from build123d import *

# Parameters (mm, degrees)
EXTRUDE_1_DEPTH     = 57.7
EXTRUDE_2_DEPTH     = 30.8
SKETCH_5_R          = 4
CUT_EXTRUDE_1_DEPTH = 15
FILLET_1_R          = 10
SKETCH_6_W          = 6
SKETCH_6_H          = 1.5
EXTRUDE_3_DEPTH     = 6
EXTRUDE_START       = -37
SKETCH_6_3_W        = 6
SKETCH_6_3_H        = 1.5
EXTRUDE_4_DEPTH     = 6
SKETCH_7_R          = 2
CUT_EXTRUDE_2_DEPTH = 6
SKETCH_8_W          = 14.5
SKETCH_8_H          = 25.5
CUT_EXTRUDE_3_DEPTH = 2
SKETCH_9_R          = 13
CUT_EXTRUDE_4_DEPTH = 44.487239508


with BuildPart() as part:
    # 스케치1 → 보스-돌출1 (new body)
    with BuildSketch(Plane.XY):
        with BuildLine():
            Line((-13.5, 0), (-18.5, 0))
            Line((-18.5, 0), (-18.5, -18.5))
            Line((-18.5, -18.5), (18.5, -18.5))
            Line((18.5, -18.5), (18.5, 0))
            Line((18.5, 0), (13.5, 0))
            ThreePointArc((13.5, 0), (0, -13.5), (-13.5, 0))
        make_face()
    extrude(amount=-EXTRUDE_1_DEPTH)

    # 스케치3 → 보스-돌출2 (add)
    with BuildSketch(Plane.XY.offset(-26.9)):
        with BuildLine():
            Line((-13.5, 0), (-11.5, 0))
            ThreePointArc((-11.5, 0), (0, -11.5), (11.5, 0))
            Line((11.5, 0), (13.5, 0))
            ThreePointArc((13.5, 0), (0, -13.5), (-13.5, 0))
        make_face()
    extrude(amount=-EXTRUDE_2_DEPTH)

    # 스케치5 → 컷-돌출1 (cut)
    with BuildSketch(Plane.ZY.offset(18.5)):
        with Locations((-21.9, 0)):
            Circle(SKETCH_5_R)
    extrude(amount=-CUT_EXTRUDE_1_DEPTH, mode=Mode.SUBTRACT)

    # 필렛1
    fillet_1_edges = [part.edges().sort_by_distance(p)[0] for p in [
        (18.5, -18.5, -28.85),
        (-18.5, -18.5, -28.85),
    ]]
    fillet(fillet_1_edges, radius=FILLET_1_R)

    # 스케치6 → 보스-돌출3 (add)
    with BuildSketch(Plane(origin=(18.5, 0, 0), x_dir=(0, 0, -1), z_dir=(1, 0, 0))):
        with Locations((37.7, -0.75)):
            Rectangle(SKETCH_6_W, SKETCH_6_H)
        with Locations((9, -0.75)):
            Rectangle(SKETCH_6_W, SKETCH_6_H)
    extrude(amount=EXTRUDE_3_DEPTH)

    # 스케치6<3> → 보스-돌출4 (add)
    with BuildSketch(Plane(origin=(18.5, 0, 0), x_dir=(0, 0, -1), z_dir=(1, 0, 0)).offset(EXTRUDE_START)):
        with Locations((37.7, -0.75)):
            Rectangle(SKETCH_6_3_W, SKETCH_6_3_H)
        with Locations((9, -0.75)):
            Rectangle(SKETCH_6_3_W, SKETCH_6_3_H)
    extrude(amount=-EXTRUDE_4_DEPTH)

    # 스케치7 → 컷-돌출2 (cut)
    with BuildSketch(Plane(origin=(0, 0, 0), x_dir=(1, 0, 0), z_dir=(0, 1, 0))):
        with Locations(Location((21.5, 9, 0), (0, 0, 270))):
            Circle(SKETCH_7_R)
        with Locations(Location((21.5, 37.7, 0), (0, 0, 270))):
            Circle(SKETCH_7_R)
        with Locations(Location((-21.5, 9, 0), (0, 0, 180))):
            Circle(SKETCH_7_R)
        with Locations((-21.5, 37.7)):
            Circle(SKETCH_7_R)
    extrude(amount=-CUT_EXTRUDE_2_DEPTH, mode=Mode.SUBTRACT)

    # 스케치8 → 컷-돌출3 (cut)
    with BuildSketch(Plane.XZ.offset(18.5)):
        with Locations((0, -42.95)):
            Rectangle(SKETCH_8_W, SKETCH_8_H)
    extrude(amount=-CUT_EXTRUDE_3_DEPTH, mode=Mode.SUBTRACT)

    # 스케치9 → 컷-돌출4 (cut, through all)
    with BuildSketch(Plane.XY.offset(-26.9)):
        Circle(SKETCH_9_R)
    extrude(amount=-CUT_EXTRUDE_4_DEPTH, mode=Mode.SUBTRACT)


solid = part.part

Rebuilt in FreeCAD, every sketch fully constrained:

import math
import FreeCAD as App
import Part
import Sketcher

V = App.Vector


def edges_at(feature, points):
    """Names of the edges that pass closest to the given points."""
    edges = feature.Shape.Edges
    near = lambda p: min(range(len(edges)), key=lambda i: edges[i].distToShape(Part.Vertex(*p))[0])
    return sorted({f"Edge{near(p) + 1}" for p in points})

doc = App.newDocument("Part")
body = doc.addObject("PartDesign::Body", "Body")

# Sketch on XY plane
sketch1 = body.newObject("Sketcher::SketchObject", "Sketch")
sketch1.AttachmentSupport = (doc.getObject("XY_Plane"), [""])
sketch1.MapMode = "FlatFace"
sketch1.addGeometry([
    Part.LineSegment(V(-14, 0, 0), V(-18, 0, 0)),  # 0
    Part.LineSegment(V(-18, 0, 0), V(-18, -18, 0)),  # 1
    Part.LineSegment(V(-18, -18, 0), V(18, -18, 0)),  # 2
    Part.LineSegment(V(18, -18, 0), V(18, 0, 0)),  # 3
    Part.LineSegment(V(18, 0, 0), V(14, 0, 0)),  # 4
    Part.ArcOfCircle(Part.Circle(V(0, 0, 0), V(0, 0, 1), 14), math.radians(180), math.radians(360)),  # 5
], False)
sketch1.addConstraint([
    Sketcher.Constraint("Coincident", 0, 2, 1, 1),
    Sketcher.Constraint("Coincident", 1, 2, 2, 1),
    Sketcher.Constraint("Coincident", 2, 2, 3, 1),
    Sketcher.Constraint("Coincident", 3, 2, 4, 1),
    Sketcher.Constraint("Coincident", 4, 2, 5, 2),
    Sketcher.Constraint("Coincident", 5, 1, 0, 1),
    Sketcher.Constraint("Horizontal", 0),
    Sketcher.Constraint("Vertical", 1),
    Sketcher.Constraint("Horizontal", 2),
    Sketcher.Constraint("Vertical", 3),
    Sketcher.Constraint("Horizontal", 4),
    Sketcher.Constraint("Coincident", 5, 3, -1, 1),
    Sketcher.Constraint("Symmetric", 0, 2, 3, 2, -1, 1),
    Sketcher.Constraint("PointOnObject", 0, 2, -1),
    Sketcher.Constraint("Radius", 5, 13.5),
    Sketcher.Constraint("DistanceX", 0, 2, 0, 1, 5.0),
    Sketcher.Constraint("DistanceY", 1, 2, 1, 1, 18.5),
])
pad1 = body.newObject("PartDesign::Pad", "Pad")
pad1.Profile = sketch1
pad1.Length = 57.7
pad1.Reversed = True

# Sketch on XY plane
sketch2 = body.newObject("Sketcher::SketchObject", "Sketch001")
sketch2.AttachmentSupport = (doc.getObject("XY_Plane"), [""])
sketch2.MapMode = "FlatFace"
sketch2.AttachmentOffset = App.Placement(V(0, 0, -26.9), App.Rotation())
sketch2.addGeometry([
    Part.LineSegment(V(-11.5, 0, 0), V(-13.5, 0, 0)),
    Part.ArcOfCircle(Part.Circle(V(0, 0, 0), V(0, 0, 1), 13.5), math.radians(180), math.radians(360)),
    Part.LineSegment(V(13.5, 0, 0), V(11.5, 0, 0)),
    Part.ArcOfCircle(Part.Circle(V(0, 0, 0), V(0, 0, 1), 11.5), math.radians(180), math.radians(360)),
], False)
sketch2.addConstraint([
    Sketcher.Constraint("Coincident", 0, 2, 1, 1),
    Sketcher.Constraint("Coincident", 1, 2, 2, 1),
    Sketcher.Constraint("Coincident", 2, 2, 3, 2),
    Sketcher.Constraint("Coincident", 3, 1, 0, 1),
    Sketcher.Constraint("Horizontal", 0),
    Sketcher.Constraint("Horizontal", 2),
    Sketcher.Constraint("Coincident", 1, 3, -1, 1),
    Sketcher.Constraint("Coincident", 3, 3, -1, 1),
    Sketcher.Constraint("PointOnObject", 0, 2, -1),
    Sketcher.Constraint("PointOnObject", 1, 2, -1),
    Sketcher.Constraint("Radius", 1, 13.5),
    Sketcher.Constraint("Radius", 3, 11.5),
])
pad2 = body.newObject("PartDesign::Pad", "Pad001")
pad2.Profile = sketch2
pad2.Length = 30.8
pad2.Reversed = True

# Sketch on YZ plane
sketch3 = body.newObject("Sketcher::SketchObject", "Sketch002")
sketch3.AttachmentSupport = (doc.getObject("YZ_Plane"), [""])
sketch3.MapMode = "FlatFace"
sketch3.AttachmentOffset = App.Placement(V(0, 0, -18.5), App.Rotation())
sketch3.addGeometry(Part.Circle(V(0, -21.9, 0), V(0, 0, 1), 4), False)
sketch3.addConstraint([
    Sketcher.Constraint("PointOnObject", 0, 3, -2),
    Sketcher.Constraint("Diameter", 0, 8.0),
    Sketcher.Constraint("DistanceY", 0, 3, -1, 1, 21.9),
])
pocket1 = body.newObject("PartDesign::Pocket", "Pocket")
pocket1.Profile = sketch3
pocket1.Length = 15
pocket1.Reversed = True
doc.recompute()

fillet = body.newObject("PartDesign::Fillet", "Fillet")
fillet.Base = (pocket1, edges_at(pocket1, [(18.5, -18.5, -28.85), (-18.5, -18.5, -28.85)]))
fillet.Radius = 10

# Sketch on YZ plane
sketch4 = body.newObject("Sketcher::SketchObject", "Sketch003")
sketch4.AttachmentSupport = (doc.getObject("YZ_Plane"), [""])
sketch4.MapMode = "FlatFace"
sketch4.AttachmentOffset = App.Placement(V(0, 0, 18.5), App.Rotation())
sketch4.addGeometry([
    Part.LineSegment(V(0, -34.7, 0), V(-1.5, -34.7, 0)),  # 0
    Part.LineSegment(V(-1.5, -34.7, 0), V(-1.5, -40.7, 0)),  # 1
    Part.LineSegment(V(-1.5, -40.7, 0), V(0, -40.7, 0)),  # 2
    Part.LineSegment(V(0, -40.7, 0), V(0, -34.7, 0)),  # 3
    Part.LineSegment(V(0, -6, 0), V(-1.5, -6, 0)),  # 4
    Part.LineSegment(V(-1.5, -6, 0), V(-1.5, -12, 0)),  # 5
    Part.LineSegment(V(-1.5, -12, 0), V(0, -12, 0)),  # 6
    Part.LineSegment(V(0, -12, 0), V(0, -6, 0)),  # 7
], False)
sketch4.addConstraint([
    Sketcher.Constraint("Coincident", 0, 2, 1, 1),
    Sketcher.Constraint("Coincident", 1, 2, 2, 1),
    Sketcher.Constraint("Coincident", 2, 2, 3, 1),
    Sketcher.Constraint("Coincident", 3, 2, 0, 1),
    Sketcher.Constraint("Coincident", 4, 2, 5, 1),
    Sketcher.Constraint("Coincident", 5, 2, 6, 1),
    Sketcher.Constraint("Coincident", 6, 2, 7, 1),
    Sketcher.Constraint("Coincident", 7, 2, 4, 1),
    Sketcher.Constraint("Horizontal", 0),
    Sketcher.Constraint("Vertical", 1),
    Sketcher.Constraint("Horizontal", 2),
    Sketcher.Constraint("Vertical", 3),
    Sketcher.Constraint("Horizontal", 4),
    Sketcher.Constraint("Vertical", 5),
    Sketcher.Constraint("Horizontal", 6),
    Sketcher.Constraint("Vertical", 7),
    Sketcher.Constraint("PointOnObject", 2, 2, -2),
    Sketcher.Constraint("PointOnObject", 6, 2, -2),
    Sketcher.Constraint("Vertical", 1, 2, 4, 2),
    Sketcher.Constraint("Equal", 3, 5),
    Sketcher.Constraint("DistanceY", 1, 2, 1, 1, 6.0),
    Sketcher.Constraint("DistanceX", 0, 2, 0, 1, 1.5),
    Sketcher.Constraint("DistanceY", 4, 2, -1, 1, 6.0),
    Sketcher.Constraint("DistanceY", 0, 2, -1, 1, 34.7),
])
pad3 = body.newObject("PartDesign::Pad", "Pad002")
pad3.Profile = sketch4
pad3.Length = 6

# Sketch on YZ plane
sketch5 = body.newObject("Sketcher::SketchObject", "Sketch004")
sketch5.AttachmentSupport = (doc.getObject("YZ_Plane"), [""])
sketch5.MapMode = "FlatFace"
sketch5.AttachmentOffset = App.Placement(V(0, 0, -18.5), App.Rotation())
sketch5.addGeometry([
    Part.LineSegment(V(0, -34.7, 0), V(-1.5, -34.7, 0)),  # 0
    Part.LineSegment(V(-1.5, -34.7, 0), V(-1.5, -40.7, 0)),  # 1
    Part.LineSegment(V(-1.5, -40.7, 0), V(0, -40.7, 0)),  # 2
    Part.LineSegment(V(0, -40.7, 0), V(0, -34.7, 0)),  # 3
    Part.LineSegment(V(0, -6, 0), V(-1.5, -6, 0)),  # 4
    Part.LineSegment(V(-1.5, -6, 0), V(-1.5, -12, 0)),  # 5
    Part.LineSegment(V(-1.5, -12, 0), V(0, -12, 0)),  # 6
    Part.LineSegment(V(0, -12, 0), V(0, -6, 0)),  # 7
], False)
sketch5.addConstraint([
    Sketcher.Constraint("Coincident", 0, 2, 1, 1),
    Sketcher.Constraint("Coincident", 1, 2, 2, 1),
    Sketcher.Constraint("Coincident", 2, 2, 3, 1),
    Sketcher.Constraint("Coincident", 3, 2, 0, 1),
    Sketcher.Constraint("Coincident", 4, 2, 5, 1),
    Sketcher.Constraint("Coincident", 5, 2, 6, 1),
    Sketcher.Constraint("Coincident", 6, 2, 7, 1),
    Sketcher.Constraint("Coincident", 7, 2, 4, 1),
    Sketcher.Constraint("Horizontal", 0),
    Sketcher.Constraint("Vertical", 1),
    Sketcher.Constraint("Horizontal", 2),
    Sketcher.Constraint("Vertical", 3),
    Sketcher.Constraint("Horizontal", 4),
    Sketcher.Constraint("Vertical", 5),
    Sketcher.Constraint("Horizontal", 6),
    Sketcher.Constraint("Vertical", 7),
    Sketcher.Constraint("PointOnObject", 2, 2, -2),
    Sketcher.Constraint("PointOnObject", 6, 2, -2),
    Sketcher.Constraint("Vertical", 1, 2, 4, 2),
    Sketcher.Constraint("Equal", 3, 5),
    Sketcher.Constraint("DistanceY", 1, 2, 1, 1, 6.0),
    Sketcher.Constraint("DistanceX", 0, 2, 0, 1, 1.5),
    Sketcher.Constraint("DistanceY", 4, 2, -1, 1, 6.0),
    Sketcher.Constraint("DistanceY", 0, 2, -1, 1, 34.7),
])
pad4 = body.newObject("PartDesign::Pad", "Pad003")
pad4.Profile = sketch5
pad4.Length = 6
pad4.Reversed = True

# Sketch on XZ plane
sketch6 = body.newObject("Sketcher::SketchObject", "Sketch005")
sketch6.AttachmentSupport = (doc.getObject("XZ_Plane"), [""])
sketch6.MapMode = "FlatFace"
sketch6.addGeometry([
    Part.Circle(V(21.5, -9, 0), V(0, 0, 1), 2),
    Part.Circle(V(21.5, -37.7, 0), V(0, 0, 1), 2),
    Part.Circle(V(-21.5, -9, 0), V(0, 0, 1), 2),
    Part.Circle(V(-21.5, -37.7, 0), V(0, 0, 1), 2),
], False)
sketch6.addConstraint([
    Sketcher.Constraint("Equal", 0, 1),
    Sketcher.Constraint("Equal", 1, 2),
    Sketcher.Constraint("Equal", 2, 3),
    Sketcher.Constraint("Symmetric", 0, 3, 2, 3, -2),
    Sketcher.Constraint("Symmetric", 1, 3, 3, 3, -2),
    Sketcher.Constraint("Vertical", 0, 3, 1, 3),
    Sketcher.Constraint("Diameter", 0, 4.0),
    Sketcher.Constraint("DistanceY", 0, 3, -1, 1, 9.0),
    Sketcher.Constraint("DistanceX", 2, 3, 0, 3, 43.0),
    Sketcher.Constraint("DistanceY", 1, 3, -1, 1, 37.7),
])
pocket2 = body.newObject("PartDesign::Pocket", "Pocket001")
pocket2.Profile = sketch6
pocket2.Length = 6
pocket2.Reversed = True

# Sketch on XZ plane
sketch7 = body.newObject("Sketcher::SketchObject", "Sketch006")
sketch7.AttachmentSupport = (doc.getObject("XZ_Plane"), [""])
sketch7.MapMode = "FlatFace"
sketch7.AttachmentOffset = App.Placement(V(0, 0, 18.5), App.Rotation())
sketch7.addGeometry([
    Part.LineSegment(V(-7, -30, 0), V(-7, -56, 0)),
    Part.LineSegment(V(-7, -56, 0), V(7, -56, 0)),
    Part.LineSegment(V(7, -56, 0), V(7, -30, 0)),
    Part.LineSegment(V(7, -30, 0), V(-7, -30, 0)),
], False)
sketch7.addConstraint([
    Sketcher.Constraint("Coincident", 0, 2, 1, 1),
    Sketcher.Constraint("Coincident", 1, 2, 2, 1),
    Sketcher.Constraint("Coincident", 2, 2, 3, 1),
    Sketcher.Constraint("Coincident", 3, 2, 0, 1),
    Sketcher.Constraint("Vertical", 0),
    Sketcher.Constraint("Horizontal", 1),
    Sketcher.Constraint("Vertical", 2),
    Sketcher.Constraint("Horizontal", 3),
    Sketcher.Constraint("DistanceX", 1, 1, 1, 2, 14.5),
    Sketcher.Constraint("DistanceY", 0, 2, 0, 1, 25.5),
    Sketcher.Constraint("DistanceY", 0, 2, -1, 1, 55.7),
    Sketcher.Constraint("DistanceX", 0, 2, -1, 1, 7.25),
])
pocket3 = body.newObject("PartDesign::Pocket", "Pocket002")
pocket3.Profile = sketch7
pocket3.Length = 2

# Sketch on XY plane
sketch8 = body.newObject("Sketcher::SketchObject", "Sketch007")
sketch8.AttachmentSupport = (doc.getObject("XY_Plane"), [""])
sketch8.MapMode = "FlatFace"
sketch8.AttachmentOffset = App.Placement(V(0, 0, -26.9), App.Rotation())
sketch8.addGeometry(Part.Circle(V(0, 0, 0), V(0, 0, 1), 13), False)
sketch8.addConstraint([
    Sketcher.Constraint("Coincident", 0, 3, -1, 1),
    Sketcher.Constraint("Diameter", 0, 26.0),
])
pocket4 = body.newObject("PartDesign::Pocket", "Pocket003")
pocket4.Profile = sketch8
pocket4.Type = "ThroughAll"

doc.recompute()
